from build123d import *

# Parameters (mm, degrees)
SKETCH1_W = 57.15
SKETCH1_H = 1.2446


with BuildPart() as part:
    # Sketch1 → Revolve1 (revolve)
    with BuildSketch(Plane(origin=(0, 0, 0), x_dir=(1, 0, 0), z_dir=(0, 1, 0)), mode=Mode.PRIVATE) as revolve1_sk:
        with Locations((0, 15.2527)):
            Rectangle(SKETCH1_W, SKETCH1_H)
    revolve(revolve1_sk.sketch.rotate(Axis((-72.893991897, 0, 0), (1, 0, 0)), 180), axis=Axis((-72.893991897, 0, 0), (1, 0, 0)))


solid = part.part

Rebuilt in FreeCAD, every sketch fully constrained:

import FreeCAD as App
import Part
import Sketcher
from FreeCAD import Vector
Q = App.Units.Quantity

doc = App.newDocument("Part")
body = doc.addObject("PartDesign::Body", "Body")

sketch1 = body.newObject("Sketcher::SketchObject", "Sketch")
sketch1.AttachmentSupport = (doc.getObject("XZ_Plane"), [""])
sketch1.MapMode = "FlatFace"
sketch1.addGeometry([
    Part.LineSegment(Vector(-28.6, -15.9, 0), Vector(-28.6, -14.6, 0)),
    Part.LineSegment(Vector(-28.6, -14.6, 0), Vector(28.6, -14.6, 0)),
    Part.LineSegment(Vector(28.6, -14.6, 0), Vector(28.6, -15.9, 0)),
    Part.LineSegment(Vector(28.6, -15.9, 0), Vector(-28.6, -15.9, 0)),
], False)
sketch1.addConstraint([
    Sketcher.Constraint("Coincident", 0, 2, 1, 1),
    Sketcher.Constraint("Coincident", 1, 2, 2, 1),
    Sketcher.Constraint("Coincident", 2, 2, 3, 1),
    Sketcher.Constraint("Coincident", 3, 2, 0, 1),
    Sketcher.Constraint("Vertical", 0),
    Sketcher.Constraint("Horizontal", 1),
    Sketcher.Constraint("Vertical", 2),
    Sketcher.Constraint("Horizontal", 3),
    Sketcher.Constraint("DistanceX", 1, 1, 1, 2, Q("2.25 in")),
    Sketcher.Constraint("DistanceY", 0, 1, 0, 2, Q("0.049 in")),
    Sketcher.Constraint("DistanceX", 0, 2, -1, 1, Q("1.125 in")),
    Sketcher.Constraint("DistanceY", 0, 2, -1, 1, Q("0.576 in")),
])
revolution = body.newObject("PartDesign::Revolution", "Revolution")
revolution.Profile = sketch1
revolution.ReferenceAxis = (sketch1, ["H_Axis"])
revolution.Angle = 360

doc.recompute()
